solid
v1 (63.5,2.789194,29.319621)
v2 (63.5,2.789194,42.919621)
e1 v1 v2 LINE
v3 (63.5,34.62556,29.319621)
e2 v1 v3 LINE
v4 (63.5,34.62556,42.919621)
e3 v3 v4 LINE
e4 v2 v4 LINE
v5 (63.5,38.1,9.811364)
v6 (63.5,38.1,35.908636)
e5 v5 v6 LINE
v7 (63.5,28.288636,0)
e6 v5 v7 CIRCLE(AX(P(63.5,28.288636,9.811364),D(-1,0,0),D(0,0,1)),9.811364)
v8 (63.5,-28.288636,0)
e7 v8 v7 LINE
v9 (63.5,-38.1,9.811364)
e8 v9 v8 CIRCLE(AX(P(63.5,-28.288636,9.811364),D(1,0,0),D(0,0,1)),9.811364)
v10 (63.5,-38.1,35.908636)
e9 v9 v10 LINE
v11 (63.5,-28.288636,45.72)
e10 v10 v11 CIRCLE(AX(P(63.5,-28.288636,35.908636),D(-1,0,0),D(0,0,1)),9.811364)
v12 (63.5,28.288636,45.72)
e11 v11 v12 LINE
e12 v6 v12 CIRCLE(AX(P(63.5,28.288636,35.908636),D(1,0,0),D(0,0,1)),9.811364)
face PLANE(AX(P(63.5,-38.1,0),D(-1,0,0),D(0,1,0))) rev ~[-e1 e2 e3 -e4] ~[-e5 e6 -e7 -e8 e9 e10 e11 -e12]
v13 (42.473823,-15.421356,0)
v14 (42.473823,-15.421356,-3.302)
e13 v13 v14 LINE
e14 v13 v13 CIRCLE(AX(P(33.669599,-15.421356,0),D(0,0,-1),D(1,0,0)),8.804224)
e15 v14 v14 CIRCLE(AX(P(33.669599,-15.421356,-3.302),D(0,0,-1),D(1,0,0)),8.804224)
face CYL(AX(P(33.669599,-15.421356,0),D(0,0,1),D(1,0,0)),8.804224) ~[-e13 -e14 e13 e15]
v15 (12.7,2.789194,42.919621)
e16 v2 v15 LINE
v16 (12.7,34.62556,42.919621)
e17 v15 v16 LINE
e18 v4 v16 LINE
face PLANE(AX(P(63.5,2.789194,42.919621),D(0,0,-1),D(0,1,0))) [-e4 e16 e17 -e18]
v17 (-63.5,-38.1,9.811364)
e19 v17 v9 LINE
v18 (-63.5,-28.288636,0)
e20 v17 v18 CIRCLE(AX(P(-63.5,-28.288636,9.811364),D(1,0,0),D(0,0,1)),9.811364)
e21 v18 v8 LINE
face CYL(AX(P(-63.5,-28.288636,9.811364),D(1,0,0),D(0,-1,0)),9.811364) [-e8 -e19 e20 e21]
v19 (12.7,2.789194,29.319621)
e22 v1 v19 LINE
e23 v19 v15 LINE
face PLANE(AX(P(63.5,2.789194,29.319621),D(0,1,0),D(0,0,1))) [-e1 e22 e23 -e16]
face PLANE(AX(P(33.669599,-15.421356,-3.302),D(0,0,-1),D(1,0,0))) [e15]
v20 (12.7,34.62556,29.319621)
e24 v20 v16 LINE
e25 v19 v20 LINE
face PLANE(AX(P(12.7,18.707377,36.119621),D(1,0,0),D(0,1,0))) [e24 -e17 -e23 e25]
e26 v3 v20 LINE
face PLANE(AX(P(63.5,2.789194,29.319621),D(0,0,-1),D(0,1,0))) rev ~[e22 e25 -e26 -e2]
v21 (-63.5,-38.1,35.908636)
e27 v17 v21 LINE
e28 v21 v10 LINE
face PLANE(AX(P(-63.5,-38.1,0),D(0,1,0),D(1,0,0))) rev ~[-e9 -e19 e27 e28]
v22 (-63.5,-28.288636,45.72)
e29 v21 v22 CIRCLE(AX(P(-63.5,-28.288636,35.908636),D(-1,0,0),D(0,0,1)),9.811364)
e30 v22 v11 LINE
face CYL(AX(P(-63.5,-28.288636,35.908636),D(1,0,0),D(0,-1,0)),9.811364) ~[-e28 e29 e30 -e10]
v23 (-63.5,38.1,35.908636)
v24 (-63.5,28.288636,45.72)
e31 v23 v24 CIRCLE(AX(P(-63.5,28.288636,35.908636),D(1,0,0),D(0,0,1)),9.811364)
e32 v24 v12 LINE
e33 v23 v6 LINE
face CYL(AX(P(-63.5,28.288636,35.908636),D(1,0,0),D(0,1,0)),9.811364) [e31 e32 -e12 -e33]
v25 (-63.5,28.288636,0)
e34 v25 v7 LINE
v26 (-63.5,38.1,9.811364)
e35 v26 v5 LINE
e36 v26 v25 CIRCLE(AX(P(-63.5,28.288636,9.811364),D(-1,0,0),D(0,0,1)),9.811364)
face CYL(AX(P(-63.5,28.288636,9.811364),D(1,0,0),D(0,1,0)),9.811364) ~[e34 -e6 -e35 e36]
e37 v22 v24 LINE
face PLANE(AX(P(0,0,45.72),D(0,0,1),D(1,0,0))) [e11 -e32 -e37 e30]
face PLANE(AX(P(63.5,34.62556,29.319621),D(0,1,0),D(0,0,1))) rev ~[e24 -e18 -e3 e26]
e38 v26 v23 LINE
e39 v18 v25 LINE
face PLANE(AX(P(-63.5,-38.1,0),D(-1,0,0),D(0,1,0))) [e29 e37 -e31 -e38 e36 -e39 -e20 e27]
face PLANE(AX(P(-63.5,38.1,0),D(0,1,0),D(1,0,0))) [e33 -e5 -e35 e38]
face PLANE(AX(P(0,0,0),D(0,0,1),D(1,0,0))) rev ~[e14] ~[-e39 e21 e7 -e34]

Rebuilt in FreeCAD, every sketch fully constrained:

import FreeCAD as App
import Part
import Sketcher

V = App.Vector
Q = App.Units.Quantity


def edges_at(feature, points):
    """Names of the edges that pass closest to the given points."""
    edges = feature.Shape.Edges
    near = lambda p: min(range(len(edges)), key=lambda i: edges[i].distToShape(Part.Vertex(*p))[0])
    return sorted({f"Edge{near(p) + 1}" for p in points})


def add_polygon(sketch, points):
    """Adds a closed chain of lines whose ends are joined by coincident constraints."""
    first, n = sketch.GeometryCount, len(points)
    for a, b in zip(points, points[1:] + points[:1]):
        sketch.addGeometry(Part.LineSegment(App.Vector(*a, 0), App.Vector(*b, 0)), False)
    for i in range(n):
        sketch.addConstraint(Sketcher.Constraint("Coincident", first + i, 2, first + (i + 1) % n, 1))

doc = App.newDocument("Part")
body = doc.addObject("PartDesign::Body", "Body")

# Sketch on XY plane
sketch1 = body.newObject("Sketcher::SketchObject", "Sketch")
sketch1.AttachmentSupport = (doc.getObject("XY_Plane"), [""])
sketch1.MapMode = "FlatFace"
add_polygon(sketch1, [(-63.5, 38.1), (-63.5, -38.1), (63.5, -38.1), (63.5, 38.1)])  # lines 0-3
sketch1.addConstraint([
    Sketcher.Constraint("Vertical", 0),
    Sketcher.Constraint("Horizontal", 1),
    Sketcher.Constraint("Vertical", 2),
    Sketcher.Constraint("Horizontal", 3),
    Sketcher.Constraint("Symmetric", 0, 2, 2, 2, -1, 1),
    Sketcher.Constraint("DistanceX", 1, 1, 1, 2, Q("5 in")),
    Sketcher.Constraint("DistanceY", 0, 2, 0, 1, Q("3 in")),
])
pad1 = body.newObject("PartDesign::Pad", "Pad")
pad1.Profile = sketch1
pad1.Length = Q("1.8 in")
doc.recompute()

fillet = body.newObject("PartDesign::Fillet", "Fillet")
fillet.Base = (pad1, edges_at(pad1, [
    (0, -38.1, 45.72),
    (0, 38.1, 45.72),
    (0, -38.1, 0),
    (0, 38.1, 0),
]))
fillet.Radius = 9.811364

# Sketch on XY plane
sketch2 = body.newObject("Sketcher::SketchObject", "Sketch001")
sketch2.AttachmentSupport = (doc.getObject("XY_Plane"), [""])
sketch2.MapMode = "FlatFace"
sketch2.addGeometry(Part.Circle(V(33.669599, -15.421356, 0), V(0, 0, 1), 8.804224), False)
sketch2.addConstraint([
    Sketcher.Constraint("Diameter", 0, 17.608448),
    Sketcher.Constraint("DistanceX", -1, 1, 0, 3, 33.669599),
    Sketcher.Constraint("DistanceY", 0, 3, -1, 1, 15.421356),
])
pad2 = body.newObject("PartDesign::Pad", "Pad001")
pad2.Profile = sketch2
pad2.Length = Q("0.13 in")
pad2.Reversed = True

# Sketch on YZ plane
sketch3 = body.newObject("Sketcher::SketchObject", "Sketch002")
sketch3.AttachmentSupport = (doc.getObject("YZ_Plane"), [""])
sketch3.MapMode = "FlatFace"
sketch3.AttachmentOffset = App.Placement(V(0, 0, 2.5 * 25.4), App.Rotation())
add_polygon(sketch3, [(2.789194, 42.919621), (2.789194, 29.319621), (34.62556, 29.319621), (34.62556, 42.919621)])  # lines 0-3
sketch3.addConstraint([
    Sketcher.Constraint("Vertical", 0),
    Sketcher.Constraint("Horizontal", 1),
    Sketcher.Constraint("Vertical", 2),
    Sketcher.Constraint("Horizontal", 3),
    Sketcher.Constraint("DistanceY", 0, 2, 0, 1, 13.6),
    Sketcher.Constraint("DistanceX", 1, 1, 1, 2, 31.836366),
    Sketcher.Constraint("DistanceY", -1, 1, 0, 2, 29.319621),
    Sketcher.Constraint("DistanceX", -1, 1, 1, 2, 34.62556),
])
pocket1 = body.newObject("PartDesign::Pocket", "Pocket")
pocket1.Profile = sketch3
pocket1.Length = Q("2 in")

doc.recompute()
